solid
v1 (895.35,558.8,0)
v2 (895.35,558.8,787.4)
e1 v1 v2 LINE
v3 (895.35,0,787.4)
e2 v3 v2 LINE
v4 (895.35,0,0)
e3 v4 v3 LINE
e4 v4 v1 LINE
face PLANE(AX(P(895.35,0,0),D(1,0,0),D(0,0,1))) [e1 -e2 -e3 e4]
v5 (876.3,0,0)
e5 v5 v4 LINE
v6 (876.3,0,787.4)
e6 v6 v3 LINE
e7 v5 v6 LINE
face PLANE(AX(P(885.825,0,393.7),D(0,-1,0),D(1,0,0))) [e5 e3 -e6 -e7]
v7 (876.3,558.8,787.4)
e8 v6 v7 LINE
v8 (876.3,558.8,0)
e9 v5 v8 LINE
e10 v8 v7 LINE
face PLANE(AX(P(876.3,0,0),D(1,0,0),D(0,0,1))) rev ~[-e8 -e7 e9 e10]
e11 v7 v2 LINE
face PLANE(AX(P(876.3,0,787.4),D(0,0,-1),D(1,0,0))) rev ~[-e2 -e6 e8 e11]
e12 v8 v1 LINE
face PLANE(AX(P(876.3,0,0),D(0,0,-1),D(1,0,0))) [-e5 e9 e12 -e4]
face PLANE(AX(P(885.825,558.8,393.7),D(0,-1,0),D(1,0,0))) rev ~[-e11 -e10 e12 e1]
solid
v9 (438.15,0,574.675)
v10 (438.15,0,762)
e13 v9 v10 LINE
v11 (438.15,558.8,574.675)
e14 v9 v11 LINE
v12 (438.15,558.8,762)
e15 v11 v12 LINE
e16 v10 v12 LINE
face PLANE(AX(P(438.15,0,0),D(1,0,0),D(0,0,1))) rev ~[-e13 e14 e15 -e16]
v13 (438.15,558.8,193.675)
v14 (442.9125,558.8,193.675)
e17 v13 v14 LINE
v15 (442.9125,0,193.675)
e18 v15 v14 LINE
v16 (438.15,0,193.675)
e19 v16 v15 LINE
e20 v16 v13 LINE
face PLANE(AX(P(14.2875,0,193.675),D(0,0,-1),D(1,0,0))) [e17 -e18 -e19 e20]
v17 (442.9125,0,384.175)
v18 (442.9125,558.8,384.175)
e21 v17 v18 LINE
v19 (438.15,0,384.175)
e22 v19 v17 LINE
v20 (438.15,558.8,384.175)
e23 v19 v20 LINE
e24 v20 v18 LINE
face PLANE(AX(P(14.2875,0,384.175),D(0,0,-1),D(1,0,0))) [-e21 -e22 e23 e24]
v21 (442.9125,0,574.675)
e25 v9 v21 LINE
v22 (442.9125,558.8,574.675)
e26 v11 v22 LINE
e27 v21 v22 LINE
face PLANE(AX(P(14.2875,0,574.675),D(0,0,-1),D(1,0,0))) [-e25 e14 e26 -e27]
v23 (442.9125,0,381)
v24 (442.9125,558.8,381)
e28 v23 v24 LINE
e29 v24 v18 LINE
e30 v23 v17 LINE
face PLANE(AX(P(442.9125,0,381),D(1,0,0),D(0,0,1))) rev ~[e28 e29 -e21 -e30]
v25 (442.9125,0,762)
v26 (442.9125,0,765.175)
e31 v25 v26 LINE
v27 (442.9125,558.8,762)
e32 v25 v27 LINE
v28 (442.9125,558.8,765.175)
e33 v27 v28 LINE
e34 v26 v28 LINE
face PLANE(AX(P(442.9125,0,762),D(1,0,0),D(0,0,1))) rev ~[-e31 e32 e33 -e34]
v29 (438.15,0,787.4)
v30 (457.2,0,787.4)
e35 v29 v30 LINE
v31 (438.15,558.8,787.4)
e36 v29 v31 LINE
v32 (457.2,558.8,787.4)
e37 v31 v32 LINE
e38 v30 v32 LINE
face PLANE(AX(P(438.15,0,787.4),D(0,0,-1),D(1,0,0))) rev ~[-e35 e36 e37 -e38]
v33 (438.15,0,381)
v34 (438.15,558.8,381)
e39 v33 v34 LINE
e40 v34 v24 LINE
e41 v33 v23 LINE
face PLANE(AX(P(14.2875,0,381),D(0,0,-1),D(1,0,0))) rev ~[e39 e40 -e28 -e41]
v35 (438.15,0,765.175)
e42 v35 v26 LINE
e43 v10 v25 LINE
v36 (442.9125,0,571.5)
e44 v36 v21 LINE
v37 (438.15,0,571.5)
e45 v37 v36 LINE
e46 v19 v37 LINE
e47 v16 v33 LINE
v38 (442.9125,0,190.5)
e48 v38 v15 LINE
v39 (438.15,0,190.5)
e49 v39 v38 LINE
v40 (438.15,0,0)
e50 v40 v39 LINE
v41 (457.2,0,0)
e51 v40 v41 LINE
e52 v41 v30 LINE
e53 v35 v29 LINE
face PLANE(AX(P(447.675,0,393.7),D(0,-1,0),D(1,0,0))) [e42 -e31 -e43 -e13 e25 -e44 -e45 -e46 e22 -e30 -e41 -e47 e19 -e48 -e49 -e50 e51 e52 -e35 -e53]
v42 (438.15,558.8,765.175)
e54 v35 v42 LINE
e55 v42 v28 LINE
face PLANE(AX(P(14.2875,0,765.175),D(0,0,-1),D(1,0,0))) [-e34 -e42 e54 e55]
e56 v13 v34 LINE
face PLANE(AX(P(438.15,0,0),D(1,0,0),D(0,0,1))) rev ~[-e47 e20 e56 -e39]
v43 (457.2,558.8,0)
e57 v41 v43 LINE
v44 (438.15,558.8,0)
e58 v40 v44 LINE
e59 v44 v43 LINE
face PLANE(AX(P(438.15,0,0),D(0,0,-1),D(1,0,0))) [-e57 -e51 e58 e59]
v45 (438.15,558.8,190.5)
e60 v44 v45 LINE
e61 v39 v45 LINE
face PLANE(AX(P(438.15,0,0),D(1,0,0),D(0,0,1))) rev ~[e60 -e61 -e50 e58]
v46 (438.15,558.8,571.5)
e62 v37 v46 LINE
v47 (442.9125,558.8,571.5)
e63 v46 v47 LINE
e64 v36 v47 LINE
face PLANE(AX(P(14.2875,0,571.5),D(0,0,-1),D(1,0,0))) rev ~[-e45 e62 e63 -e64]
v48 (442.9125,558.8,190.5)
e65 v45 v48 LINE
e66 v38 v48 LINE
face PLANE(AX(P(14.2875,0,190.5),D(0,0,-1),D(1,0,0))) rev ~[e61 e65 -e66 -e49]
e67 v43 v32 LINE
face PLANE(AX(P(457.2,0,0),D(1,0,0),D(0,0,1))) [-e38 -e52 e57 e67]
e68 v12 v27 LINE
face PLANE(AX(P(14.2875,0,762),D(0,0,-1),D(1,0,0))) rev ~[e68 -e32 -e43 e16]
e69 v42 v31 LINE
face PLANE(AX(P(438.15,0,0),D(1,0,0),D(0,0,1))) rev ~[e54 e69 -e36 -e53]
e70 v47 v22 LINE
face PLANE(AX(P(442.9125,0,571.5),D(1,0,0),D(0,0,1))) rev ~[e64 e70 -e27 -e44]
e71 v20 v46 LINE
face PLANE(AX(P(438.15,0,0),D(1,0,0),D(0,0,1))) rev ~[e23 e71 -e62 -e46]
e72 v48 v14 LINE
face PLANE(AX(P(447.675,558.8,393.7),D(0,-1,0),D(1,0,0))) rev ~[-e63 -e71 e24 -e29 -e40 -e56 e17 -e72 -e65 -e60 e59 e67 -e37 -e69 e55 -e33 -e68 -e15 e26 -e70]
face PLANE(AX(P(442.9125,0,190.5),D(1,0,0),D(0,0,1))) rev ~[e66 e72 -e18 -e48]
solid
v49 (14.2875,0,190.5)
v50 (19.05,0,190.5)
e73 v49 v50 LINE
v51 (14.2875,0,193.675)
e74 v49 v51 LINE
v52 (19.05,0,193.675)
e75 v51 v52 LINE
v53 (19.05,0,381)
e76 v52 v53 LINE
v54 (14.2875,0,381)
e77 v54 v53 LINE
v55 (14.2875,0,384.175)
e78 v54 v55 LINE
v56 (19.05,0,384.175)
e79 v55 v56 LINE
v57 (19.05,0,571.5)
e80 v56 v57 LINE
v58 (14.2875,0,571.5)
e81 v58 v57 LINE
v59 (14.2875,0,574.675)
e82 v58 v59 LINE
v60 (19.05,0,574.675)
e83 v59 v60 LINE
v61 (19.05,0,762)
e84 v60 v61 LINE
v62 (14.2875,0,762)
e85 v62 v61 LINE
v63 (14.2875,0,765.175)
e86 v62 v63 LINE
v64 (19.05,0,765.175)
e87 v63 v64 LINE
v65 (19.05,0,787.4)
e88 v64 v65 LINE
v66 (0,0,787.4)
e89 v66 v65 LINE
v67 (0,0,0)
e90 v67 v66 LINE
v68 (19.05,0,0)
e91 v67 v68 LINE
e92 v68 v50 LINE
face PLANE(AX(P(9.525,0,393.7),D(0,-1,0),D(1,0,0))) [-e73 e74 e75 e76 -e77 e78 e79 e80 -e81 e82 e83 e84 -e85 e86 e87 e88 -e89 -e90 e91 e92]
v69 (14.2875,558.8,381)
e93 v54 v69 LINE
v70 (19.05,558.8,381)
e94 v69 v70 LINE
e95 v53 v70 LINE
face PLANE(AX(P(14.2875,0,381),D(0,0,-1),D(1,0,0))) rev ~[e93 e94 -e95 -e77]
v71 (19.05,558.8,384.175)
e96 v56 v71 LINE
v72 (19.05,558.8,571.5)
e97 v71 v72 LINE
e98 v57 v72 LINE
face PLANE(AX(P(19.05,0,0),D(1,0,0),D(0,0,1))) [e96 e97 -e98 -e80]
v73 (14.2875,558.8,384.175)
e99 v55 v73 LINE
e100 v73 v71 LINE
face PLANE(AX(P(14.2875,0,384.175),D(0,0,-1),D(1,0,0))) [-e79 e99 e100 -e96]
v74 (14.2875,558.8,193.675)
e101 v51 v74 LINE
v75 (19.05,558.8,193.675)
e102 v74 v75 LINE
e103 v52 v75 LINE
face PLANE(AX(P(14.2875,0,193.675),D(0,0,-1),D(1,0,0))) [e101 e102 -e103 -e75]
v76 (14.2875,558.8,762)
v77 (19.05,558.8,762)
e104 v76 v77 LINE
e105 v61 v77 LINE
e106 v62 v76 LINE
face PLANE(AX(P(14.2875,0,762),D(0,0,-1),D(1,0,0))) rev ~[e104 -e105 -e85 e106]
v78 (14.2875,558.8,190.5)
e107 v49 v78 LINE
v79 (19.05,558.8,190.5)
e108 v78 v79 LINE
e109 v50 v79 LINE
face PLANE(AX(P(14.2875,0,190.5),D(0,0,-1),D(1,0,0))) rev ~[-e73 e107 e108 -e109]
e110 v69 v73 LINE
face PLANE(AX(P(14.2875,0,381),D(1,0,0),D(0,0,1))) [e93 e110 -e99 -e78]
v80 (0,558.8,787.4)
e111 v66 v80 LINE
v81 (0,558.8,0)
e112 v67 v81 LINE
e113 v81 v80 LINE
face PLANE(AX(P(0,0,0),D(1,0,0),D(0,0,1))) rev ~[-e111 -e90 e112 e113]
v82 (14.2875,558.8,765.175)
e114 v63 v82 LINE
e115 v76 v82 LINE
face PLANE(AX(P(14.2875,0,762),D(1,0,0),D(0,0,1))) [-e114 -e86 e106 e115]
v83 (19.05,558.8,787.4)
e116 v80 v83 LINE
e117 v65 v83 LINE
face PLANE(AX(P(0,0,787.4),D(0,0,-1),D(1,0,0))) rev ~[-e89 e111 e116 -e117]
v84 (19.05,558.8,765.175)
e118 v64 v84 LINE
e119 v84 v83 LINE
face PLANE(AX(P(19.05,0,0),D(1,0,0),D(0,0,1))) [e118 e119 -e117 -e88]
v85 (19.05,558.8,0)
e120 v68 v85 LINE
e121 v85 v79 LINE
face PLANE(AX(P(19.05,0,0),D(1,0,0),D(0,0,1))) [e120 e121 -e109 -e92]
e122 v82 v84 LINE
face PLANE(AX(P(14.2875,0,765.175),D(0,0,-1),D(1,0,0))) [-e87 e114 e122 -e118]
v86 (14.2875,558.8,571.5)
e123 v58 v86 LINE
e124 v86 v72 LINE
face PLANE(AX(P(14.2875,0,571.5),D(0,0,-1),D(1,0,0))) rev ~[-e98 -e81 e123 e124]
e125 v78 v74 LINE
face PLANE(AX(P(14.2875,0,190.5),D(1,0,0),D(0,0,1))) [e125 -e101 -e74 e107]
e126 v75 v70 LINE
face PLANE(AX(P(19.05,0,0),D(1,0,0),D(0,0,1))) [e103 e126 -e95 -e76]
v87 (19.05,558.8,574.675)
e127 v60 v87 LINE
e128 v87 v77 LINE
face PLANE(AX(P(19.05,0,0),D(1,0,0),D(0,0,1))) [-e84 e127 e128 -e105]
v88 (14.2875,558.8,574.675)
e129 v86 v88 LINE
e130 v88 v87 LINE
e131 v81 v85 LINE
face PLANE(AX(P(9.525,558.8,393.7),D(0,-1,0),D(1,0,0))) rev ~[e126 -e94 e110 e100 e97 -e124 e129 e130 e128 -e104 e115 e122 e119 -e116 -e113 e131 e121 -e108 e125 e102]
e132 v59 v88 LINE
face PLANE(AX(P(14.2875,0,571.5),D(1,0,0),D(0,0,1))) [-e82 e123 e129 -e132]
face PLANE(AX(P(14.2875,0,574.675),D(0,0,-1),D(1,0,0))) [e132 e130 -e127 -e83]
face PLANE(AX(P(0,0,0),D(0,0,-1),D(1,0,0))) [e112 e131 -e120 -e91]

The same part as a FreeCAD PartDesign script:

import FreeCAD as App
import Part
import Sketcher
from FreeCAD import Vector
Q = App.Units.Quantity


def add_polygon(sketch, points):
    """Adds a closed chain of lines whose ends are joined by coincident constraints."""
    first, n = sketch.GeometryCount, len(points)
    for a, b in zip(points, points[1:] + points[:1]):
        sketch.addGeometry(Part.LineSegment(App.Vector(*a, 0), App.Vector(*b, 0)), False)
    for i in range(n):
        sketch.addConstraint(Sketcher.Constraint("Coincident", first + i, 2, first + (i + 1) % n, 1))

doc = App.newDocument("Part")
body = doc.addObject("PartDesign::Body", "Body")
body.AllowCompound = True

sketch1 = doc.addObject("Sketcher::SketchObject", "Sketch")
body.addObject(sketch1)
sketch1.AttachmentSupport = (doc.XZ_Plane, [""])
sketch1.MapMode = "FlatFace"
add_polygon(sketch1, [(0, 787), (0, 0), (19, 0), (19, 787)])
add_polygon(sketch1, [(438, 787), (438, 0), (457, 0), (457, 787)])
add_polygon(sketch1, [(876, 787), (876, 0), (895, 0), (895, 787)])
sketch1.addConstraint(Sketcher.Constraint("Vertical", 0))
sketch1.addConstraint(Sketcher.Constraint("Horizontal", 1))
sketch1.addConstraint(Sketcher.Constraint("Vertical", 2))
sketch1.addConstraint(Sketcher.Constraint("Horizontal", 3))
sketch1.addConstraint(Sketcher.Constraint("Vertical", 4))
sketch1.addConstraint(Sketcher.Constraint("Horizontal", 5))
sketch1.addConstraint(Sketcher.Constraint("Vertical", 6))
sketch1.addConstraint(Sketcher.Constraint("Horizontal", 7))
sketch1.addConstraint(Sketcher.Constraint("Vertical", 8))
sketch1.addConstraint(Sketcher.Constraint("Horizontal", 9))
sketch1.addConstraint(Sketcher.Constraint("Vertical", 10))
sketch1.addConstraint(Sketcher.Constraint("Horizontal", 11))
sketch1.addConstraint(Sketcher.Constraint("Coincident", 0, 2, -1, 1))
sketch1.addConstraint(Sketcher.Constraint("PointOnObject", 4, 2, -1))
sketch1.addConstraint(Sketcher.Constraint("PointOnObject", 8, 2, -1))
sketch1.addConstraint(Sketcher.Constraint("Horizontal", 3, 2, 6, 2))
sketch1.addConstraint(Sketcher.Constraint("Horizontal", 7, 2, 10, 2))
sketch1.addConstraint(Sketcher.Constraint("Equal", 3, 5))
sketch1.addConstraint(Sketcher.Constraint("Equal", 7, 9))
sketch1.addConstraint(Sketcher.Constraint("DistanceY", 0, 2, 0, 1, Q("31 in")))
sketch1.addConstraint(Sketcher.Constraint("DistanceX", -1, 1, 5, 2, Q("18 in")))
sketch1.addConstraint(Sketcher.Constraint("DistanceX", 4, 2, 9, 2, Q("18 in")))
sketch1.addConstraint(Sketcher.Constraint("DistanceX", 1, 1, 1, 2, Q("0.75 in")))
pad1 = doc.addObject("PartDesign::Pad", "Pad")
body.addObject(pad1)
pad1.Profile = sketch1
pad1.Length = Q("22 in")
pad1.Reversed = True

sketch2 = doc.addObject("Sketcher::SketchObject", "Sketch001")
body.addObject(sketch2)
sketch2.AttachmentSupport = (doc.XZ_Plane, [""])
sketch2.MapMode = "FlatFace"
add_polygon(sketch2, [(14.3, 193.7), (14.3, 190.5), (442.9, 190.5), (442.9, 193.7)])
add_polygon(sketch2, [(14.3, 384.2), (14.3, 381), (442.9, 381), (442.9, 384.2)])
add_polygon(sketch2, [(14.3, 574.7), (14.3, 571.5), (442.9, 571.5), (442.9, 574.7)])
add_polygon(sketch2, [(14.3, 765.2), (14.3, 762), (442.9, 762), (442.9, 765.2)])
sketch2.addConstraint(Sketcher.Constraint("Vertical", 0))
sketch2.addConstraint(Sketcher.Constraint("Horizontal", 1))
sketch2.addConstraint(Sketcher.Constraint("Vertical", 2))
sketch2.addConstraint(Sketcher.Constraint("Horizontal", 3))
sketch2.addConstraint(Sketcher.Constraint("Vertical", 4))
sketch2.addConstraint(Sketcher.Constraint("Horizontal", 5))
sketch2.addConstraint(Sketcher.Constraint("Vertical", 6))
sketch2.addConstraint(Sketcher.Constraint("Horizontal", 7))
sketch2.addConstraint(Sketcher.Constraint("Vertical", 8))
sketch2.addConstraint(Sketcher.Constraint("Horizontal", 9))
sketch2.addConstraint(Sketcher.Constraint("Vertical", 10))
sketch2.addConstraint(Sketcher.Constraint("Horizontal", 11))
sketch2.addConstraint(Sketcher.Constraint("Vertical", 12))
sketch2.addConstraint(Sketcher.Constraint("Horizontal", 13))
sketch2.addConstraint(Sketcher.Constraint("Vertical", 14))
sketch2.addConstraint(Sketcher.Constraint("Horizontal", 15))
sketch2.addConstraint(Sketcher.Constraint("Vertical", 3, 2, 4, 2))
sketch2.addConstraint(Sketcher.Constraint("Vertical", 2, 2, 5, 2))
sketch2.addConstraint(Sketcher.Constraint("Vertical", 7, 2, 8, 2))
sketch2.addConstraint(Sketcher.Constraint("Vertical", 6, 2, 9, 2))
sketch2.addConstraint(Sketcher.Constraint("Vertical", 11, 2, 12, 2))
sketch2.addConstraint(Sketcher.Constraint("Vertical", 10, 2, 13, 2))
sketch2.addConstraint(Sketcher.Constraint("Equal", 2, 4))
sketch2.addConstraint(Sketcher.Constraint("Equal", 6, 8))
sketch2.addConstraint(Sketcher.Constraint("Equal", 10, 12))
sketch2.addConstraint(Sketcher.Constraint("DistanceY", -1, 1, 4, 2, Q("15 in")))
sketch2.addConstraint(Sketcher.Constraint("DistanceY", -1, 1, 12, 2, Q("30 in")))
sketch2.addConstraint(Sketcher.Constraint("DistanceY", 0, 2, 8, 2, Q("15 in")))
sketch2.addConstraint(Sketcher.Constraint("DistanceY", -1, 1, 0, 2, Q("7.5 in")))
sketch2.addConstraint(Sketcher.Constraint("DistanceX", 1, 1, 1, 2, Q("16.875 in")))
sketch2.addConstraint(Sketcher.Constraint("DistanceY", 0, 2, 0, 1, Q("0.125 in")))
sketch2.addConstraint(Sketcher.Constraint("DistanceX", -1, 1, 0, 2, Q("0.5625 in")))
pocket1 = doc.addObject("PartDesign::Pocket", "Pocket")
body.addObject(pocket1)
pocket1.Profile = sketch2
pocket1.Type = "ThroughAll"

doc.recompute()
